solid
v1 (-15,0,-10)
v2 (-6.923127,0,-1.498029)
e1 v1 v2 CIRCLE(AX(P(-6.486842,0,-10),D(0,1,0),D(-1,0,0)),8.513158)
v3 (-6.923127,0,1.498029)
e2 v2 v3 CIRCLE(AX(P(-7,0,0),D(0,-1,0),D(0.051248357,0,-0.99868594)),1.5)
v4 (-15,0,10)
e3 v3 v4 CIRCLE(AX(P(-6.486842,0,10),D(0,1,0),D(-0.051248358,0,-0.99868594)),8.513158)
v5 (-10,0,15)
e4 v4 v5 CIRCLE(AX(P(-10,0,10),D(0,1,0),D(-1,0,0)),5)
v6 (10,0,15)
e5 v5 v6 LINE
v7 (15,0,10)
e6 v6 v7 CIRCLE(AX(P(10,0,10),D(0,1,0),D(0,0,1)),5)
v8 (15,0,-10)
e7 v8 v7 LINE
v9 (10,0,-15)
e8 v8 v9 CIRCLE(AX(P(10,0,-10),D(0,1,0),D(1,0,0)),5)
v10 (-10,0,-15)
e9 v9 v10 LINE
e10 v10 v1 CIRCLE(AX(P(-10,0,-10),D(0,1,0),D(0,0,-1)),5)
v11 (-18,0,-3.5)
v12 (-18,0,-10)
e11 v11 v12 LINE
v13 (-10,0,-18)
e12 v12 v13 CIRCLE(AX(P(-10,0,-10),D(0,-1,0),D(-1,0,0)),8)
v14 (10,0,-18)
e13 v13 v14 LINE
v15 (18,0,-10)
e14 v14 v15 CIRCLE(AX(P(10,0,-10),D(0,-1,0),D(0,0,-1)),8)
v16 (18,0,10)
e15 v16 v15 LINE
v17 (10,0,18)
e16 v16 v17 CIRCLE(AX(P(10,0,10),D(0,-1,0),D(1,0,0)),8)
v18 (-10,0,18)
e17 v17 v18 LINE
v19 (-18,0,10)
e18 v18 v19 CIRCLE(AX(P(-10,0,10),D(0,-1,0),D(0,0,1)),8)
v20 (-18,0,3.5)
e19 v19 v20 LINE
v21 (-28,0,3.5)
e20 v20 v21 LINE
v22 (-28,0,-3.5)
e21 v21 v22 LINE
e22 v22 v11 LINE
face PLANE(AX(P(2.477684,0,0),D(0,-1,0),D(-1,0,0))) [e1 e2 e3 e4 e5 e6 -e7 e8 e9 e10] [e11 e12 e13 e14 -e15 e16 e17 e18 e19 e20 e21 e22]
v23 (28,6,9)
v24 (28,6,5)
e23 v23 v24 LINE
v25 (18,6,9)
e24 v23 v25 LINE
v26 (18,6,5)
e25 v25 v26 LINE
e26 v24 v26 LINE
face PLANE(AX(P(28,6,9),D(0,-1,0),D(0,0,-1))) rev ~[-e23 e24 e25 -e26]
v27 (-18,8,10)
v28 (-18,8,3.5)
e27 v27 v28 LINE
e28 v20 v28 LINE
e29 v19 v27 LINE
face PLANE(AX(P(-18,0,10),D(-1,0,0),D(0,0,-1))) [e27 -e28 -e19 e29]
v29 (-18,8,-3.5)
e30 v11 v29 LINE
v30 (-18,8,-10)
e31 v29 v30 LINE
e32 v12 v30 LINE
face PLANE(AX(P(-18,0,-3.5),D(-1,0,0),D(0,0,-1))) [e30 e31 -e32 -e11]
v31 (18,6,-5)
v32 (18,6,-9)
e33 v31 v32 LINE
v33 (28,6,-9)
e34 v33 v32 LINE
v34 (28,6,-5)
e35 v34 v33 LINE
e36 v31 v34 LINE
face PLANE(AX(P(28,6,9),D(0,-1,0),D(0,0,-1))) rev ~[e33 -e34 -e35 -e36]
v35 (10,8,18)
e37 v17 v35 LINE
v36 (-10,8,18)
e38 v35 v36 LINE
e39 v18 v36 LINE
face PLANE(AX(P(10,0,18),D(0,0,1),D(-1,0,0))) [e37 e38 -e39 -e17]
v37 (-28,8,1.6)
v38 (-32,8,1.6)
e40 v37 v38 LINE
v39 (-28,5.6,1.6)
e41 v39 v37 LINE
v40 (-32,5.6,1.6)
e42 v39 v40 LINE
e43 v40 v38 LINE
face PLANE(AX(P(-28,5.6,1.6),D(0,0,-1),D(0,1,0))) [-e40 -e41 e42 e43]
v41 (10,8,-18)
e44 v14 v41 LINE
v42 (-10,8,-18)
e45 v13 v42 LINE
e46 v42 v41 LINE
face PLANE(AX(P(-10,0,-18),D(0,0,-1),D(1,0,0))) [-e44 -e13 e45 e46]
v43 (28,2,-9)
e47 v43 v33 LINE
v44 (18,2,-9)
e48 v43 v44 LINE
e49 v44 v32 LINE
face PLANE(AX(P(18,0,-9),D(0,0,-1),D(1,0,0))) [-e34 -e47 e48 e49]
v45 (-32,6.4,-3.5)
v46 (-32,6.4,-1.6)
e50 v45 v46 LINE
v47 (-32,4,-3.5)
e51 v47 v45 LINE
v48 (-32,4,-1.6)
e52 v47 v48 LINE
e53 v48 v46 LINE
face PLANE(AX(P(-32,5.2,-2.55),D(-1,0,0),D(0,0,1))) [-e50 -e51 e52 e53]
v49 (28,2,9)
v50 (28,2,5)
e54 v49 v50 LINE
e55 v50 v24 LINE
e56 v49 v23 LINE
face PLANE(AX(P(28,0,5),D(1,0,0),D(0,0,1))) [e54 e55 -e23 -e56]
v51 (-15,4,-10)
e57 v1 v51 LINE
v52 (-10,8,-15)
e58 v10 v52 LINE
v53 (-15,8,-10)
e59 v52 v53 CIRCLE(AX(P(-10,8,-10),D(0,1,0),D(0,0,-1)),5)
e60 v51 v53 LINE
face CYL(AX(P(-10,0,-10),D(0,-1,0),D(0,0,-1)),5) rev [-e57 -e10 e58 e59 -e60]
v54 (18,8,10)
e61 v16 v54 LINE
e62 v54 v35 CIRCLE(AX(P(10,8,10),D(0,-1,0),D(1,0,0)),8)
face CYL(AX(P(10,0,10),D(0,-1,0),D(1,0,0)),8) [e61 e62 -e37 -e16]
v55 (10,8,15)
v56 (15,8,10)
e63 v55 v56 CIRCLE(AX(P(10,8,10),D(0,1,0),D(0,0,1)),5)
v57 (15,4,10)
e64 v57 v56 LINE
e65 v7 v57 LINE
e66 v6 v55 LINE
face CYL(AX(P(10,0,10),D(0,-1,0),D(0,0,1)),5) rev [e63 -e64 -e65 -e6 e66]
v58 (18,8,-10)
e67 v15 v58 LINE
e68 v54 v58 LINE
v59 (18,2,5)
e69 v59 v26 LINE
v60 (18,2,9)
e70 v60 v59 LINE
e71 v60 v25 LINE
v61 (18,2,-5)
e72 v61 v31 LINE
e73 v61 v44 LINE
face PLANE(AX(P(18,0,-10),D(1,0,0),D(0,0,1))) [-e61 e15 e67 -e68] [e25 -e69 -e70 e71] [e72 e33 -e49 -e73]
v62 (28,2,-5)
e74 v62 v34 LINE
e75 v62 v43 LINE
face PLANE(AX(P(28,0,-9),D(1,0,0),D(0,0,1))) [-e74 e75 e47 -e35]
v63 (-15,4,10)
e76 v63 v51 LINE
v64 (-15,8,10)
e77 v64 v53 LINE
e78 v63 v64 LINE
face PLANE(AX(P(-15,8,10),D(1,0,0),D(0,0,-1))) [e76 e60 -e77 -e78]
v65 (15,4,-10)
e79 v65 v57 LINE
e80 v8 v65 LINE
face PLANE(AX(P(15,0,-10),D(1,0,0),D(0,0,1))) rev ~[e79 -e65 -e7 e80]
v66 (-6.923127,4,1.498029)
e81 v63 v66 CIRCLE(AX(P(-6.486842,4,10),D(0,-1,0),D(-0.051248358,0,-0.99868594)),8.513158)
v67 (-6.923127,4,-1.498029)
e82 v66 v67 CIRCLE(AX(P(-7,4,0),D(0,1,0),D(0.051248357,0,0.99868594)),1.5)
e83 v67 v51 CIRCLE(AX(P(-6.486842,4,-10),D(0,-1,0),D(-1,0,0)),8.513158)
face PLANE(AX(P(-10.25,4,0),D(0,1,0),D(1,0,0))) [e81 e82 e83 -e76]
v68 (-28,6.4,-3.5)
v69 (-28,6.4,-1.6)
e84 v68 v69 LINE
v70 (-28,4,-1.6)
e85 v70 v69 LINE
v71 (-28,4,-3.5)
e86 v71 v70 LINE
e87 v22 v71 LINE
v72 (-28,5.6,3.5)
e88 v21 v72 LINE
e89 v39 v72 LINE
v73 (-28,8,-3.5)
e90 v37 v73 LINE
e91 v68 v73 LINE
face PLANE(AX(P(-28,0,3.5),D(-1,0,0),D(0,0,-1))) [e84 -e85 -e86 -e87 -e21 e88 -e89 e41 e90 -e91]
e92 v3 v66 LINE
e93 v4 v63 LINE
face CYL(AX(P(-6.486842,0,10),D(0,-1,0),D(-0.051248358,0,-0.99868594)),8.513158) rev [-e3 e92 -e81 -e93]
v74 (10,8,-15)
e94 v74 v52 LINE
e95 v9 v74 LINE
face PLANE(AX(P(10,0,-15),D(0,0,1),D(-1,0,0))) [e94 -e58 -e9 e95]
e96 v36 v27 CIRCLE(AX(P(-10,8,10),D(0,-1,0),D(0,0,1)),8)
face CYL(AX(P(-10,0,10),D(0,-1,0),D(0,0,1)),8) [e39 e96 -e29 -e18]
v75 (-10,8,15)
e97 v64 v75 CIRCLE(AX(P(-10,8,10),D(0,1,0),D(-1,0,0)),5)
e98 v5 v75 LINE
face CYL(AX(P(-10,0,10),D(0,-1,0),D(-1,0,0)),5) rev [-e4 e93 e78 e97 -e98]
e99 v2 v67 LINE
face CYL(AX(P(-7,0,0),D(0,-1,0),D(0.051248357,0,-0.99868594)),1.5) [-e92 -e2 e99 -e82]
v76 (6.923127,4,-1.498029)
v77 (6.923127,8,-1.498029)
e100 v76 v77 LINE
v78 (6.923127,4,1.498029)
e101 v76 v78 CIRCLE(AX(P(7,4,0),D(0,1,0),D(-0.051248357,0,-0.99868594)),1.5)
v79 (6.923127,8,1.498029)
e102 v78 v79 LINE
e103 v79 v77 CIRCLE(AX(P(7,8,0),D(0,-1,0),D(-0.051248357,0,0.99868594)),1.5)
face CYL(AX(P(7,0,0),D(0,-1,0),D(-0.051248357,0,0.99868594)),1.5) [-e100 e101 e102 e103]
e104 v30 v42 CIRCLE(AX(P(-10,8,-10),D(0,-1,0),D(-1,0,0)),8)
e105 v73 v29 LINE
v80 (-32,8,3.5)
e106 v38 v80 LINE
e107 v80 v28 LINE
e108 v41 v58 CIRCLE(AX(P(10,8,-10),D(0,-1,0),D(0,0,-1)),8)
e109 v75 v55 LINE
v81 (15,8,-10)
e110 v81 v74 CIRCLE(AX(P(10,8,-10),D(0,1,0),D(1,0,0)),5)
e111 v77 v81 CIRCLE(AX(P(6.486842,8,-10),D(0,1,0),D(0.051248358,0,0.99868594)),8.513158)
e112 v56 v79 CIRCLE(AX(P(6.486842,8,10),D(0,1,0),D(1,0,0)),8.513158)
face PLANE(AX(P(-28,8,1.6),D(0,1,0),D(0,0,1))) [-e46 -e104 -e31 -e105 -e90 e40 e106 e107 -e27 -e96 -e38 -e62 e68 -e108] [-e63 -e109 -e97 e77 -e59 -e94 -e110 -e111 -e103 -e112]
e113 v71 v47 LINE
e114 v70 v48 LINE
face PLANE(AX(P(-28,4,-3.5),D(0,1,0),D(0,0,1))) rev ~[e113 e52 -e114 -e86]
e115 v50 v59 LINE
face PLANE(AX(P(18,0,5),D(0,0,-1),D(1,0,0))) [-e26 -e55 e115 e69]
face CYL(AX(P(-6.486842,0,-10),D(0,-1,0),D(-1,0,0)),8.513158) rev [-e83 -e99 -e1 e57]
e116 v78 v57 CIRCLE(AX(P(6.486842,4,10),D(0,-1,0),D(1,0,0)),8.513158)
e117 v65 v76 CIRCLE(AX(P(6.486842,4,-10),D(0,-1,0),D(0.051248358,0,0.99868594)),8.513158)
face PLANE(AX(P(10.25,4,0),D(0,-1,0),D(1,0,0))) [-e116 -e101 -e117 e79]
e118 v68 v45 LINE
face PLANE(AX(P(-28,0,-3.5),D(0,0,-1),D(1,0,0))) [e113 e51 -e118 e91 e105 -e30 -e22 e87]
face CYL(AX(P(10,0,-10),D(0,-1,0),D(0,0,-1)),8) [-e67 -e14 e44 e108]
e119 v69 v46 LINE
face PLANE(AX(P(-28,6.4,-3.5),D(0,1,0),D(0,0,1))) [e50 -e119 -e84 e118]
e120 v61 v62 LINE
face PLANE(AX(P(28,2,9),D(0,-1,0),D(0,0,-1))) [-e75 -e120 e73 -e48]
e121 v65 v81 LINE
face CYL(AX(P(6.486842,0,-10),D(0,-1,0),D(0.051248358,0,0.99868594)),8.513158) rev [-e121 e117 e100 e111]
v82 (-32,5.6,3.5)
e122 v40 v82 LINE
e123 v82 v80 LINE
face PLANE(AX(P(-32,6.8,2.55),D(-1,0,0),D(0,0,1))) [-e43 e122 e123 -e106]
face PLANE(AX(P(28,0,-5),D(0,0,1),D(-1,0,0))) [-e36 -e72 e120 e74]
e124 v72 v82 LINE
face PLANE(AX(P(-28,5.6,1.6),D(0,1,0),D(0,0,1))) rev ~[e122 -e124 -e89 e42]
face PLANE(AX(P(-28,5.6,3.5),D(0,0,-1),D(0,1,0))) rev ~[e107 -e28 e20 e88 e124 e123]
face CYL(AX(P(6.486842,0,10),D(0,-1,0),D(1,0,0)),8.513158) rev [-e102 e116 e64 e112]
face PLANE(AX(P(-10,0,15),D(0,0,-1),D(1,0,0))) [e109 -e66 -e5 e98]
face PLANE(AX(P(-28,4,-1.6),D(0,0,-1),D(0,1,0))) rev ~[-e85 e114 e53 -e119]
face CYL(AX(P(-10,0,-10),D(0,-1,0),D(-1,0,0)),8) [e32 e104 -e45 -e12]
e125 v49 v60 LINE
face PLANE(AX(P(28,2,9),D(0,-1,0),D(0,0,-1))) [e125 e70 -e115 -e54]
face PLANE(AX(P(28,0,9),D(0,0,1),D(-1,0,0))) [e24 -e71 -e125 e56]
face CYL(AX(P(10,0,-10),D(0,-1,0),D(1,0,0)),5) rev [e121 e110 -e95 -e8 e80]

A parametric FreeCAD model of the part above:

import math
import FreeCAD as App
import Part
import Sketcher
Q = App.Units.Quantity


def add_polygon(sketch, points):
    """Adds a closed chain of lines whose ends are joined by coincident constraints."""
    first, n = sketch.GeometryCount, len(points)
    for a, b in zip(points, points[1:] + points[:1]):
        sketch.addGeometry(Part.LineSegment(App.Vector(*a, 0), App.Vector(*b, 0)), False)
    for i in range(n):
        sketch.addConstraint(Sketcher.Constraint("Coincident", first + i, 2, first + (i + 1) % n, 1))

doc = App.newDocument("Part")
params = doc.addObject("Spreadsheet::Sheet", "Params")
for row, (alias, value) in enumerate([
    ("sketch1_radius", "8 mm"),
    ("sketch1_radius2", "5 mm"),
    ("sketch1_radius3", "1.5 mm"),
    ("sketch1_width", "20 mm"),
    ("sketch1_width2", "10 mm"),
    ("pad1_length", "8 mm"),
    ("sketch2_width", "2.4 mm"),
    ("sketch2_height", "1.9 mm"),
    ("pad2_length", "4 mm"),
    ("sketch3_width", "2 mm"),
    ("sketch3_height", "18 mm"),
    ("pocket1_length", "10 mm"),
    ("sketch4_height", "20 mm"),
    ("sketch4_width", "9.5 mm"),
    ("pocket2_length", "4 mm"),
    ("sketch5_height", "20 mm"),
    ("sketch5_width", "9.5 mm"),
    ("pocket3_length", "4 mm"),
], start=1):
    params.set(f"A{row}", alias)
    params.set(f"B{row}", "=" + value)
    params.setAlias(f"B{row}", alias)

body = doc.addObject("PartDesign::Body", "Body")

sketch1 = body.newObject("Sketcher::SketchObject", "Sketch")
sketch1.AttachmentSupport = (doc.getObject("XZ_Plane"), [""])
sketch1.MapMode = "FlatFace"
sketch1.addGeometry([
    Part.LineSegment(App.Vector(-18, 3.5, 0), App.Vector(-18, 10, 0)),
    Part.ArcOfCircle(Part.Circle(App.Vector(-10, 10, 0), App.Vector(0, 0, 1), 8), math.radians(90), math.radians(180)),
    Part.LineSegment(App.Vector(-10, 18, 0), App.Vector(10, 18, 0)),
    Part.ArcOfCircle(Part.Circle(App.Vector(10, 10, 0), App.Vector(0, 0, 1), 8), math.radians(0), math.radians(90)),
    Part.LineSegment(App.Vector(18, 10, 0), App.Vector(18, 9, 0)),
    Part.LineSegment(App.Vector(18, 9, 0), App.Vector(28, 9, 0)),
    Part.LineSegment(App.Vector(28, 9, 0), App.Vector(28, 5, 0)),
    Part.LineSegment(App.Vector(28, 5, 0), App.Vector(18, 5, 0)),
    Part.LineSegment(App.Vector(18, 5, 0), App.Vector(18, -5, 0)),
    Part.LineSegment(App.Vector(18, -5, 0), App.Vector(28, -5, 0)),
    Part.LineSegment(App.Vector(28, -5, 0), App.Vector(28, -9, 0)),
    Part.LineSegment(App.Vector(28, -9, 0), App.Vector(18, -9, 0)),
    Part.LineSegment(App.Vector(18, -9, 0), App.Vector(18, -10, 0)),
    Part.ArcOfCircle(Part.Circle(App.Vector(10, -10, 0), App.Vector(0, 0, 1), 8), math.radians(-90), math.radians(0)),
    Part.LineSegment(App.Vector(10, -18, 0), App.Vector(-10, -18, 0)),
    Part.ArcOfCircle(Part.Circle(App.Vector(-10, -10, 0), App.Vector(0, 0, 1), 8), math.radians(-180), math.radians(-90)),
    Part.LineSegment(App.Vector(-18, -10, 0), App.Vector(-18, -3.5, 0)),
    Part.LineSegment(App.Vector(-18, -3.5, 0), App.Vector(-28, -3.5, 0)),
    Part.LineSegment(App.Vector(-28, -3.5, 0), App.Vector(-28, 3.5, 0)),
    Part.LineSegment(App.Vector(-28, 3.5, 0), App.Vector(-18, 3.5, 0)),
    Part.ArcOfCircle(Part.Circle(App.Vector(-10, 10, 0), App.Vector(0, 0, 1), 5), math.radians(90), math.radians(180)),
    Part.ArcOfCircle(Part.Circle(App.Vector(-6.5, 10, 0), App.Vector(0, 0, 1), 8.5), math.radians(-180), math.radians(-93)),
    Part.ArcOfCircle(Part.Circle(App.Vector(-7, 0, 0), App.Vector(0, 0, 1), 1.5), math.radians(-87), math.radians(87)),
    Part.ArcOfCircle(Part.Circle(App.Vector(-6.5, -10, 0), App.Vector(0, 0, 1), 8.5), math.radians(93), math.radians(180)),
    Part.ArcOfCircle(Part.Circle(App.Vector(-10, -10, 0), App.Vector(0, 0, 1), 5), math.radians(180), math.radians(270)),
    Part.LineSegment(App.Vector(-10, -15, 0), App.Vector(10, -15, 0)),
    Part.ArcOfCircle(Part.Circle(App.Vector(10, -10, 0), App.Vector(0, 0, 1), 5), math.radians(-90), math.radians(0)),
    Part.ArcOfCircle(Part.Circle(App.Vector(6.5, -10, 0), App.Vector(0, 0, 1), 8.5), math.radians(0), math.radians(87)),
    Part.ArcOfCircle(Part.Circle(App.Vector(7, 0, 0), App.Vector(0, 0, 1), 1.5), math.radians(93), math.radians(267)),
    Part.ArcOfCircle(Part.Circle(App.Vector(6.5, 10, 0), App.Vector(0, 0, 1), 8.5), math.radians(-87), math.radians(0)),
    Part.ArcOfCircle(Part.Circle(App.Vector(10, 10, 0), App.Vector(0, 0, 1), 5), math.radians(0), math.radians(90)),
    Part.LineSegment(App.Vector(10, 15, 0), App.Vector(-10, 15, 0)),
], False)
sketch1.addConstraint([
    Sketcher.Constraint("Tangent", 0, 2, 1, 2),
    Sketcher.Constraint("Tangent", 1, 1, 2, 1),
    Sketcher.Constraint("Tangent", 2, 2, 3, 2),
    Sketcher.Constraint("Tangent", 3, 1, 4, 1),
    Sketcher.Constraint("Coincident", 4, 2, 5, 1),
    Sketcher.Constraint("Coincident", 5, 2, 6, 1),
    Sketcher.Constraint("Coincident", 6, 2, 7, 1),
    Sketcher.Constraint("Coincident", 7, 2, 8, 1),
    Sketcher.Constraint("Coincident", 8, 2, 9, 1),
    Sketcher.Constraint("Coincident", 9, 2, 10, 1),
    Sketcher.Constraint("Coincident", 10, 2, 11, 1),
    Sketcher.Constraint("Coincident", 11, 2, 12, 1),
    Sketcher.Constraint("Tangent", 12, 2, 13, 2),
    Sketcher.Constraint("Tangent", 13, 1, 14, 1),
    Sketcher.Constraint("Tangent", 14, 2, 15, 2),
    Sketcher.Constraint("Tangent", 15, 1, 16, 1),
    Sketcher.Constraint("Coincident", 16, 2, 17, 1),
    Sketcher.Constraint("Coincident", 17, 2, 18, 1),
    Sketcher.Constraint("Coincident", 18, 2, 19, 1),
    Sketcher.Constraint("Coincident", 19, 2, 0, 1),
    Sketcher.Constraint("Tangent", 20, 2, 21, 1),
    Sketcher.Constraint("Tangent", 21, 2, 22, 2),
    Sketcher.Constraint("Tangent", 22, 1, 23, 1),
    Sketcher.Constraint("Tangent", 23, 2, 24, 1),
    Sketcher.Constraint("Tangent", 24, 2, 25, 1),
    Sketcher.Constraint("Tangent", 25, 2, 26, 1),
    Sketcher.Constraint("Tangent", 26, 2, 27, 1),
    Sketcher.Constraint("Tangent", 27, 2, 28, 2),
    Sketcher.Constraint("Tangent", 28, 1, 29, 1),
    Sketcher.Constraint("Tangent", 29, 2, 30, 1),
    Sketcher.Constraint("Tangent", 30, 2, 31, 1),
    Sketcher.Constraint("Tangent", 31, 2, 20, 1),
    Sketcher.Constraint("Vertical", 0),
    Sketcher.Constraint("Horizontal", 2),
    Sketcher.Constraint("Vertical", 4),
    Sketcher.Constraint("Horizontal", 5),
    Sketcher.Constraint("Vertical", 6),
    Sketcher.Constraint("Horizontal", 7),
    Sketcher.Constraint("Vertical", 8),
    Sketcher.Constraint("Horizontal", 9),
    Sketcher.Constraint("Vertical", 10),
    Sketcher.Constraint("Horizontal", 11),
    Sketcher.Constraint("Vertical", 12),
    Sketcher.Constraint("Horizontal", 14),
    Sketcher.Constraint("Vertical", 16),
    Sketcher.Constraint("Horizontal", 17),
    Sketcher.Constraint("Vertical", 18),
    Sketcher.Constraint("Horizontal", 19),
    Sketcher.Constraint("Horizontal", 25),
    Sketcher.Constraint("Horizontal", 31),
    Sketcher.Constraint("Coincident", 20, 3, 1, 3),
    Sketcher.Constraint("Coincident", 24, 3, 15, 3),
    Sketcher.Constraint("Coincident", 26, 3, 13, 3),
    Sketcher.Constraint("Coincident", 30, 3, 3, 3),
    Sketcher.Constraint("Equal", 1, 3),
    Sketcher.Constraint("Equal", 3, 13),
    Sketcher.Constraint("Equal", 13, 15),
    Sketcher.Constraint("Equal", 21, 23),
    Sketcher.Constraint("Equal", 20, 24),
    Sketcher.Constraint("Equal", 23, 27),
    Sketcher.Constraint("Equal", 22, 28),
    Sketcher.Constraint("Equal", 27, 29),
    Sketcher.Constraint("Symmetric", 1, 3, 13, 3, -1, 1),
    Sketcher.Constraint("Symmetric", 22, 3, 28, 3, -1, 1),
    Sketcher.Constraint("Symmetric", 23, 3, 27, 3, -2),
    Sketcher.Constraint("Symmetric", 6, 2, 9, 2, -1),
    Sketcher.Constraint("Symmetric", 4, 2, 11, 2, -1),
    Sketcher.Constraint("Horizontal", 20, 3, 21, 3),
    Sketcher.Constraint("Vertical", 4, 2, 7, 2),
    Sketcher.Constraint("Equal", 11, 17),
    Sketcher.Constraint("Equal", 19, 8),
    Sketcher.Constraint("Equal", 0, 16),
    Sketcher.Constraint("Radius", 1, Q("8 mm")),
    Sketcher.Constraint("Radius", 20, Q("5 mm")),
    Sketcher.Constraint("Radius", 22, Q("1.5 mm")),
    Sketcher.Constraint("DistanceX", 2, 1, 2, 2, Q("20 mm")),
    Sketcher.Constraint("DistanceX", 5, 1, 5, 2, Q("10 mm")),
    Sketcher.Constraint("DistanceY", 4, 2, 4, 1, Q("1 mm")),
    Sketcher.Constraint("DistanceY", 6, 2, 6, 1, Q("4 mm")),
    Sketcher.Constraint("DistanceY", 18, 1, 18, 2, Q("7 mm")),
    Sketcher.Constraint("DistanceX", 22, 3, -1, 1, Q("7 mm")),
])
sketch1.setExpression("Constraints[72]", "Params.sketch1_radius")
sketch1.setExpression("Constraints[73]", "Params.sketch1_radius2")
sketch1.setExpression("Constraints[74]", "Params.sketch1_radius3")
sketch1.setExpression("Constraints[75]", "Params.sketch1_width")
sketch1.setExpression("Constraints[76]", "Params.sketch1_width2")
pad1 = body.newObject("PartDesign::Pad", "Pad")
pad1.Profile = sketch1
pad1.setExpression("Length", "Params.pad1_length")
pad1.Reversed = True

sketch2 = body.newObject("Sketcher::SketchObject", "Sketch001")
sketch2.AttachmentSupport = (doc.getObject("YZ_Plane"), [""])
sketch2.MapMode = "FlatFace"
sketch2.AttachmentOffset = App.Placement(App.Vector(0, 0, -28), App.Rotation())
add_polygon(sketch2, [(8, 1.6), (5.6, 1.6), (5.6, 3.5), (8, 3.5)])
add_polygon(sketch2, [(6.4, -3.5), (4, -3.5), (4, -1.6), (6.4, -1.6)])
sketch2.addConstraint([
    Sketcher.Constraint("Horizontal", 0),
    Sketcher.Constraint("Vertical", 1),
    Sketcher.Constraint("Horizontal", 2),
    Sketcher.Constraint("Vertical", 3),
    Sketcher.Constraint("Horizontal", 4),
    Sketcher.Constraint("Vertical", 5),
    Sketcher.Constraint("Horizontal", 6),
    Sketcher.Constraint("Vertical", 7),
    Sketcher.Constraint("Equal", 2, 4),
    Sketcher.Constraint("Equal", 3, 5),
    Sketcher.Constraint("DistanceX", 0, 2, 0, 1, Q("2.4 mm")),
    Sketcher.Constraint("DistanceY", 1, 1, 1, 2, Q("1.9 mm")),
    Sketcher.Constraint("DistanceX", -1, 1, 2, 2, Q("8 mm")),
    Sketcher.Constraint("DistanceX", -1, 1, 4, 2, Q("4 mm")),
    Sketcher.Constraint("DistanceY", 4, 2, 1, 2, Q("7 mm")),
    Sketcher.Constraint("DistanceY", -1, 1, 0, 2, Q("1.6 mm")),
])
sketch2.setExpression("Constraints[18]", "Params.sketch2_width")
sketch2.setExpression("Constraints[19]", "Params.sketch2_height")
pad2 = body.newObject("PartDesign::Pad", "Pad001")
pad2.Profile = sketch2
pad2.setExpression("Length", "Params.pad2_length")
pad2.Reversed = True

sketch3 = body.newObject("Sketcher::SketchObject", "Sketch002")
sketch3.AttachmentSupport = (doc.getObject("YZ_Plane"), [""])
sketch3.MapMode = "FlatFace"
sketch3.AttachmentOffset = App.Placement(App.Vector(0, 0, 28), App.Rotation())
add_polygon(sketch3, [(2, 9), (0, 9), (0, -9), (2, -9)])
add_polygon(sketch3, [(8, 9), (6, 9), (6, -9), (8, -9)])
sketch3.addConstraint([
    Sketcher.Constraint("Horizontal", 0),
    Sketcher.Constraint("Vertical", 1),
    Sketcher.Constraint("Horizontal", 2),
    Sketcher.Constraint("Vertical", 3),
    Sketcher.Constraint("Horizontal", 4),
    Sketcher.Constraint("Vertical", 5),
    Sketcher.Constraint("Horizontal", 6),
    Sketcher.Constraint("Vertical", 7),
    Sketcher.Constraint("Symmetric", 0, 2, 1, 2, -1, 1),
    Sketcher.Constraint("Horizontal", 3, 2, 4, 2),
    Sketcher.Constraint("Horizontal", 2, 2, 5, 2),
    Sketcher.Constraint("Equal", 2, 4),
    Sketcher.Constraint("DistanceX", 0, 2, 0, 1, Q("2 mm")),
    Sketcher.Constraint("DistanceY", 1, 2, 1, 1, Q("18 mm")),
    Sketcher.Constraint("DistanceX", -1, 1, 4, 2, Q("6 mm")),
])
sketch3.setExpression("Constraints[20]", "Params.sketch3_width")
sketch3.setExpression("Constraints[21]", "Params.sketch3_height")
pocket1 = body.newObject("PartDesign::Pocket", "Pocket")
pocket1.Profile = sketch3
pocket1.setExpression("Length", "Params.pocket1_length")

sketch4 = body.newObject("Sketcher::SketchObject", "Sketch003")
sketch4.AttachmentSupport = (doc.getObject("XZ_Plane"), [""])
sketch4.MapMode = "FlatFace"
add_polygon(sketch4, [(6, 10), (6, -10), (15, -10), (15, 10)])
sketch4.addConstraint([
    Sketcher.Constraint("Vertical", 0),
    Sketcher.Constraint("Horizontal", 1),
    Sketcher.Constraint("Vertical", 2),
    Sketcher.Constraint("Horizontal", 3),
    Sketcher.Constraint("DistanceY", 0, 2, 0, 1, Q("20 mm")),
    Sketcher.Constraint("DistanceX", 1, 1, 1, 2, Q("9.5 mm")),
    Sketcher.Constraint("DistanceY", 0, 2, -1, 1, Q("10 mm")),
    Sketcher.Constraint("DistanceX", -1, 1, 1, 2, Q("15 mm")),
])
sketch4.setExpression("Constraints[8]", "Params.sketch4_height")
sketch4.setExpression("Constraints[9]", "Params.sketch4_width")
pocket2 = body.newObject("PartDesign::Pocket", "Pocket001")
pocket2.Profile = sketch4
pocket2.setExpression("Length", "Params.pocket2_length")

sketch5 = body.newObject("Sketcher::SketchObject", "Sketch004")
sketch5.AttachmentSupport = (doc.getObject("XZ_Plane"), [""])
sketch5.MapMode = "FlatFace"
sketch5.AttachmentOffset = App.Placement(App.Vector(0, 0, -8), App.Rotation())
add_polygon(sketch5, [(-15, -10), (-15, 10), (-6, 10), (-6, -10)])
sketch5.addConstraint([
    Sketcher.Constraint("Vertical", 0),
    Sketcher.Constraint("Horizontal", 1),
    Sketcher.Constraint("Vertical", 2),
    Sketcher.Constraint("Horizontal", 3),
    Sketcher.Constraint("DistanceY", 0, 1, 0, 2, Q("20 mm")),
    Sketcher.Constraint("DistanceX", 1, 1, 1, 2, Q("9.5 mm")),
    Sketcher.Constraint("DistanceX", 0, 2, -1, 1, Q("15 mm")),
    Sketcher.Constraint("DistanceY", -1, 1, 0, 2, Q("10 mm")),
])
sketch5.setExpression("Constraints[8]", "Params.sketch5_height")
sketch5.setExpression("Constraints[9]", "Params.sketch5_width")
pocket3 = body.newObject("PartDesign::Pocket", "Pocket002")
pocket3.Profile = sketch5
pocket3.setExpression("Length", "Params.pocket3_length")
pocket3.Reversed = True

doc.recompute()
